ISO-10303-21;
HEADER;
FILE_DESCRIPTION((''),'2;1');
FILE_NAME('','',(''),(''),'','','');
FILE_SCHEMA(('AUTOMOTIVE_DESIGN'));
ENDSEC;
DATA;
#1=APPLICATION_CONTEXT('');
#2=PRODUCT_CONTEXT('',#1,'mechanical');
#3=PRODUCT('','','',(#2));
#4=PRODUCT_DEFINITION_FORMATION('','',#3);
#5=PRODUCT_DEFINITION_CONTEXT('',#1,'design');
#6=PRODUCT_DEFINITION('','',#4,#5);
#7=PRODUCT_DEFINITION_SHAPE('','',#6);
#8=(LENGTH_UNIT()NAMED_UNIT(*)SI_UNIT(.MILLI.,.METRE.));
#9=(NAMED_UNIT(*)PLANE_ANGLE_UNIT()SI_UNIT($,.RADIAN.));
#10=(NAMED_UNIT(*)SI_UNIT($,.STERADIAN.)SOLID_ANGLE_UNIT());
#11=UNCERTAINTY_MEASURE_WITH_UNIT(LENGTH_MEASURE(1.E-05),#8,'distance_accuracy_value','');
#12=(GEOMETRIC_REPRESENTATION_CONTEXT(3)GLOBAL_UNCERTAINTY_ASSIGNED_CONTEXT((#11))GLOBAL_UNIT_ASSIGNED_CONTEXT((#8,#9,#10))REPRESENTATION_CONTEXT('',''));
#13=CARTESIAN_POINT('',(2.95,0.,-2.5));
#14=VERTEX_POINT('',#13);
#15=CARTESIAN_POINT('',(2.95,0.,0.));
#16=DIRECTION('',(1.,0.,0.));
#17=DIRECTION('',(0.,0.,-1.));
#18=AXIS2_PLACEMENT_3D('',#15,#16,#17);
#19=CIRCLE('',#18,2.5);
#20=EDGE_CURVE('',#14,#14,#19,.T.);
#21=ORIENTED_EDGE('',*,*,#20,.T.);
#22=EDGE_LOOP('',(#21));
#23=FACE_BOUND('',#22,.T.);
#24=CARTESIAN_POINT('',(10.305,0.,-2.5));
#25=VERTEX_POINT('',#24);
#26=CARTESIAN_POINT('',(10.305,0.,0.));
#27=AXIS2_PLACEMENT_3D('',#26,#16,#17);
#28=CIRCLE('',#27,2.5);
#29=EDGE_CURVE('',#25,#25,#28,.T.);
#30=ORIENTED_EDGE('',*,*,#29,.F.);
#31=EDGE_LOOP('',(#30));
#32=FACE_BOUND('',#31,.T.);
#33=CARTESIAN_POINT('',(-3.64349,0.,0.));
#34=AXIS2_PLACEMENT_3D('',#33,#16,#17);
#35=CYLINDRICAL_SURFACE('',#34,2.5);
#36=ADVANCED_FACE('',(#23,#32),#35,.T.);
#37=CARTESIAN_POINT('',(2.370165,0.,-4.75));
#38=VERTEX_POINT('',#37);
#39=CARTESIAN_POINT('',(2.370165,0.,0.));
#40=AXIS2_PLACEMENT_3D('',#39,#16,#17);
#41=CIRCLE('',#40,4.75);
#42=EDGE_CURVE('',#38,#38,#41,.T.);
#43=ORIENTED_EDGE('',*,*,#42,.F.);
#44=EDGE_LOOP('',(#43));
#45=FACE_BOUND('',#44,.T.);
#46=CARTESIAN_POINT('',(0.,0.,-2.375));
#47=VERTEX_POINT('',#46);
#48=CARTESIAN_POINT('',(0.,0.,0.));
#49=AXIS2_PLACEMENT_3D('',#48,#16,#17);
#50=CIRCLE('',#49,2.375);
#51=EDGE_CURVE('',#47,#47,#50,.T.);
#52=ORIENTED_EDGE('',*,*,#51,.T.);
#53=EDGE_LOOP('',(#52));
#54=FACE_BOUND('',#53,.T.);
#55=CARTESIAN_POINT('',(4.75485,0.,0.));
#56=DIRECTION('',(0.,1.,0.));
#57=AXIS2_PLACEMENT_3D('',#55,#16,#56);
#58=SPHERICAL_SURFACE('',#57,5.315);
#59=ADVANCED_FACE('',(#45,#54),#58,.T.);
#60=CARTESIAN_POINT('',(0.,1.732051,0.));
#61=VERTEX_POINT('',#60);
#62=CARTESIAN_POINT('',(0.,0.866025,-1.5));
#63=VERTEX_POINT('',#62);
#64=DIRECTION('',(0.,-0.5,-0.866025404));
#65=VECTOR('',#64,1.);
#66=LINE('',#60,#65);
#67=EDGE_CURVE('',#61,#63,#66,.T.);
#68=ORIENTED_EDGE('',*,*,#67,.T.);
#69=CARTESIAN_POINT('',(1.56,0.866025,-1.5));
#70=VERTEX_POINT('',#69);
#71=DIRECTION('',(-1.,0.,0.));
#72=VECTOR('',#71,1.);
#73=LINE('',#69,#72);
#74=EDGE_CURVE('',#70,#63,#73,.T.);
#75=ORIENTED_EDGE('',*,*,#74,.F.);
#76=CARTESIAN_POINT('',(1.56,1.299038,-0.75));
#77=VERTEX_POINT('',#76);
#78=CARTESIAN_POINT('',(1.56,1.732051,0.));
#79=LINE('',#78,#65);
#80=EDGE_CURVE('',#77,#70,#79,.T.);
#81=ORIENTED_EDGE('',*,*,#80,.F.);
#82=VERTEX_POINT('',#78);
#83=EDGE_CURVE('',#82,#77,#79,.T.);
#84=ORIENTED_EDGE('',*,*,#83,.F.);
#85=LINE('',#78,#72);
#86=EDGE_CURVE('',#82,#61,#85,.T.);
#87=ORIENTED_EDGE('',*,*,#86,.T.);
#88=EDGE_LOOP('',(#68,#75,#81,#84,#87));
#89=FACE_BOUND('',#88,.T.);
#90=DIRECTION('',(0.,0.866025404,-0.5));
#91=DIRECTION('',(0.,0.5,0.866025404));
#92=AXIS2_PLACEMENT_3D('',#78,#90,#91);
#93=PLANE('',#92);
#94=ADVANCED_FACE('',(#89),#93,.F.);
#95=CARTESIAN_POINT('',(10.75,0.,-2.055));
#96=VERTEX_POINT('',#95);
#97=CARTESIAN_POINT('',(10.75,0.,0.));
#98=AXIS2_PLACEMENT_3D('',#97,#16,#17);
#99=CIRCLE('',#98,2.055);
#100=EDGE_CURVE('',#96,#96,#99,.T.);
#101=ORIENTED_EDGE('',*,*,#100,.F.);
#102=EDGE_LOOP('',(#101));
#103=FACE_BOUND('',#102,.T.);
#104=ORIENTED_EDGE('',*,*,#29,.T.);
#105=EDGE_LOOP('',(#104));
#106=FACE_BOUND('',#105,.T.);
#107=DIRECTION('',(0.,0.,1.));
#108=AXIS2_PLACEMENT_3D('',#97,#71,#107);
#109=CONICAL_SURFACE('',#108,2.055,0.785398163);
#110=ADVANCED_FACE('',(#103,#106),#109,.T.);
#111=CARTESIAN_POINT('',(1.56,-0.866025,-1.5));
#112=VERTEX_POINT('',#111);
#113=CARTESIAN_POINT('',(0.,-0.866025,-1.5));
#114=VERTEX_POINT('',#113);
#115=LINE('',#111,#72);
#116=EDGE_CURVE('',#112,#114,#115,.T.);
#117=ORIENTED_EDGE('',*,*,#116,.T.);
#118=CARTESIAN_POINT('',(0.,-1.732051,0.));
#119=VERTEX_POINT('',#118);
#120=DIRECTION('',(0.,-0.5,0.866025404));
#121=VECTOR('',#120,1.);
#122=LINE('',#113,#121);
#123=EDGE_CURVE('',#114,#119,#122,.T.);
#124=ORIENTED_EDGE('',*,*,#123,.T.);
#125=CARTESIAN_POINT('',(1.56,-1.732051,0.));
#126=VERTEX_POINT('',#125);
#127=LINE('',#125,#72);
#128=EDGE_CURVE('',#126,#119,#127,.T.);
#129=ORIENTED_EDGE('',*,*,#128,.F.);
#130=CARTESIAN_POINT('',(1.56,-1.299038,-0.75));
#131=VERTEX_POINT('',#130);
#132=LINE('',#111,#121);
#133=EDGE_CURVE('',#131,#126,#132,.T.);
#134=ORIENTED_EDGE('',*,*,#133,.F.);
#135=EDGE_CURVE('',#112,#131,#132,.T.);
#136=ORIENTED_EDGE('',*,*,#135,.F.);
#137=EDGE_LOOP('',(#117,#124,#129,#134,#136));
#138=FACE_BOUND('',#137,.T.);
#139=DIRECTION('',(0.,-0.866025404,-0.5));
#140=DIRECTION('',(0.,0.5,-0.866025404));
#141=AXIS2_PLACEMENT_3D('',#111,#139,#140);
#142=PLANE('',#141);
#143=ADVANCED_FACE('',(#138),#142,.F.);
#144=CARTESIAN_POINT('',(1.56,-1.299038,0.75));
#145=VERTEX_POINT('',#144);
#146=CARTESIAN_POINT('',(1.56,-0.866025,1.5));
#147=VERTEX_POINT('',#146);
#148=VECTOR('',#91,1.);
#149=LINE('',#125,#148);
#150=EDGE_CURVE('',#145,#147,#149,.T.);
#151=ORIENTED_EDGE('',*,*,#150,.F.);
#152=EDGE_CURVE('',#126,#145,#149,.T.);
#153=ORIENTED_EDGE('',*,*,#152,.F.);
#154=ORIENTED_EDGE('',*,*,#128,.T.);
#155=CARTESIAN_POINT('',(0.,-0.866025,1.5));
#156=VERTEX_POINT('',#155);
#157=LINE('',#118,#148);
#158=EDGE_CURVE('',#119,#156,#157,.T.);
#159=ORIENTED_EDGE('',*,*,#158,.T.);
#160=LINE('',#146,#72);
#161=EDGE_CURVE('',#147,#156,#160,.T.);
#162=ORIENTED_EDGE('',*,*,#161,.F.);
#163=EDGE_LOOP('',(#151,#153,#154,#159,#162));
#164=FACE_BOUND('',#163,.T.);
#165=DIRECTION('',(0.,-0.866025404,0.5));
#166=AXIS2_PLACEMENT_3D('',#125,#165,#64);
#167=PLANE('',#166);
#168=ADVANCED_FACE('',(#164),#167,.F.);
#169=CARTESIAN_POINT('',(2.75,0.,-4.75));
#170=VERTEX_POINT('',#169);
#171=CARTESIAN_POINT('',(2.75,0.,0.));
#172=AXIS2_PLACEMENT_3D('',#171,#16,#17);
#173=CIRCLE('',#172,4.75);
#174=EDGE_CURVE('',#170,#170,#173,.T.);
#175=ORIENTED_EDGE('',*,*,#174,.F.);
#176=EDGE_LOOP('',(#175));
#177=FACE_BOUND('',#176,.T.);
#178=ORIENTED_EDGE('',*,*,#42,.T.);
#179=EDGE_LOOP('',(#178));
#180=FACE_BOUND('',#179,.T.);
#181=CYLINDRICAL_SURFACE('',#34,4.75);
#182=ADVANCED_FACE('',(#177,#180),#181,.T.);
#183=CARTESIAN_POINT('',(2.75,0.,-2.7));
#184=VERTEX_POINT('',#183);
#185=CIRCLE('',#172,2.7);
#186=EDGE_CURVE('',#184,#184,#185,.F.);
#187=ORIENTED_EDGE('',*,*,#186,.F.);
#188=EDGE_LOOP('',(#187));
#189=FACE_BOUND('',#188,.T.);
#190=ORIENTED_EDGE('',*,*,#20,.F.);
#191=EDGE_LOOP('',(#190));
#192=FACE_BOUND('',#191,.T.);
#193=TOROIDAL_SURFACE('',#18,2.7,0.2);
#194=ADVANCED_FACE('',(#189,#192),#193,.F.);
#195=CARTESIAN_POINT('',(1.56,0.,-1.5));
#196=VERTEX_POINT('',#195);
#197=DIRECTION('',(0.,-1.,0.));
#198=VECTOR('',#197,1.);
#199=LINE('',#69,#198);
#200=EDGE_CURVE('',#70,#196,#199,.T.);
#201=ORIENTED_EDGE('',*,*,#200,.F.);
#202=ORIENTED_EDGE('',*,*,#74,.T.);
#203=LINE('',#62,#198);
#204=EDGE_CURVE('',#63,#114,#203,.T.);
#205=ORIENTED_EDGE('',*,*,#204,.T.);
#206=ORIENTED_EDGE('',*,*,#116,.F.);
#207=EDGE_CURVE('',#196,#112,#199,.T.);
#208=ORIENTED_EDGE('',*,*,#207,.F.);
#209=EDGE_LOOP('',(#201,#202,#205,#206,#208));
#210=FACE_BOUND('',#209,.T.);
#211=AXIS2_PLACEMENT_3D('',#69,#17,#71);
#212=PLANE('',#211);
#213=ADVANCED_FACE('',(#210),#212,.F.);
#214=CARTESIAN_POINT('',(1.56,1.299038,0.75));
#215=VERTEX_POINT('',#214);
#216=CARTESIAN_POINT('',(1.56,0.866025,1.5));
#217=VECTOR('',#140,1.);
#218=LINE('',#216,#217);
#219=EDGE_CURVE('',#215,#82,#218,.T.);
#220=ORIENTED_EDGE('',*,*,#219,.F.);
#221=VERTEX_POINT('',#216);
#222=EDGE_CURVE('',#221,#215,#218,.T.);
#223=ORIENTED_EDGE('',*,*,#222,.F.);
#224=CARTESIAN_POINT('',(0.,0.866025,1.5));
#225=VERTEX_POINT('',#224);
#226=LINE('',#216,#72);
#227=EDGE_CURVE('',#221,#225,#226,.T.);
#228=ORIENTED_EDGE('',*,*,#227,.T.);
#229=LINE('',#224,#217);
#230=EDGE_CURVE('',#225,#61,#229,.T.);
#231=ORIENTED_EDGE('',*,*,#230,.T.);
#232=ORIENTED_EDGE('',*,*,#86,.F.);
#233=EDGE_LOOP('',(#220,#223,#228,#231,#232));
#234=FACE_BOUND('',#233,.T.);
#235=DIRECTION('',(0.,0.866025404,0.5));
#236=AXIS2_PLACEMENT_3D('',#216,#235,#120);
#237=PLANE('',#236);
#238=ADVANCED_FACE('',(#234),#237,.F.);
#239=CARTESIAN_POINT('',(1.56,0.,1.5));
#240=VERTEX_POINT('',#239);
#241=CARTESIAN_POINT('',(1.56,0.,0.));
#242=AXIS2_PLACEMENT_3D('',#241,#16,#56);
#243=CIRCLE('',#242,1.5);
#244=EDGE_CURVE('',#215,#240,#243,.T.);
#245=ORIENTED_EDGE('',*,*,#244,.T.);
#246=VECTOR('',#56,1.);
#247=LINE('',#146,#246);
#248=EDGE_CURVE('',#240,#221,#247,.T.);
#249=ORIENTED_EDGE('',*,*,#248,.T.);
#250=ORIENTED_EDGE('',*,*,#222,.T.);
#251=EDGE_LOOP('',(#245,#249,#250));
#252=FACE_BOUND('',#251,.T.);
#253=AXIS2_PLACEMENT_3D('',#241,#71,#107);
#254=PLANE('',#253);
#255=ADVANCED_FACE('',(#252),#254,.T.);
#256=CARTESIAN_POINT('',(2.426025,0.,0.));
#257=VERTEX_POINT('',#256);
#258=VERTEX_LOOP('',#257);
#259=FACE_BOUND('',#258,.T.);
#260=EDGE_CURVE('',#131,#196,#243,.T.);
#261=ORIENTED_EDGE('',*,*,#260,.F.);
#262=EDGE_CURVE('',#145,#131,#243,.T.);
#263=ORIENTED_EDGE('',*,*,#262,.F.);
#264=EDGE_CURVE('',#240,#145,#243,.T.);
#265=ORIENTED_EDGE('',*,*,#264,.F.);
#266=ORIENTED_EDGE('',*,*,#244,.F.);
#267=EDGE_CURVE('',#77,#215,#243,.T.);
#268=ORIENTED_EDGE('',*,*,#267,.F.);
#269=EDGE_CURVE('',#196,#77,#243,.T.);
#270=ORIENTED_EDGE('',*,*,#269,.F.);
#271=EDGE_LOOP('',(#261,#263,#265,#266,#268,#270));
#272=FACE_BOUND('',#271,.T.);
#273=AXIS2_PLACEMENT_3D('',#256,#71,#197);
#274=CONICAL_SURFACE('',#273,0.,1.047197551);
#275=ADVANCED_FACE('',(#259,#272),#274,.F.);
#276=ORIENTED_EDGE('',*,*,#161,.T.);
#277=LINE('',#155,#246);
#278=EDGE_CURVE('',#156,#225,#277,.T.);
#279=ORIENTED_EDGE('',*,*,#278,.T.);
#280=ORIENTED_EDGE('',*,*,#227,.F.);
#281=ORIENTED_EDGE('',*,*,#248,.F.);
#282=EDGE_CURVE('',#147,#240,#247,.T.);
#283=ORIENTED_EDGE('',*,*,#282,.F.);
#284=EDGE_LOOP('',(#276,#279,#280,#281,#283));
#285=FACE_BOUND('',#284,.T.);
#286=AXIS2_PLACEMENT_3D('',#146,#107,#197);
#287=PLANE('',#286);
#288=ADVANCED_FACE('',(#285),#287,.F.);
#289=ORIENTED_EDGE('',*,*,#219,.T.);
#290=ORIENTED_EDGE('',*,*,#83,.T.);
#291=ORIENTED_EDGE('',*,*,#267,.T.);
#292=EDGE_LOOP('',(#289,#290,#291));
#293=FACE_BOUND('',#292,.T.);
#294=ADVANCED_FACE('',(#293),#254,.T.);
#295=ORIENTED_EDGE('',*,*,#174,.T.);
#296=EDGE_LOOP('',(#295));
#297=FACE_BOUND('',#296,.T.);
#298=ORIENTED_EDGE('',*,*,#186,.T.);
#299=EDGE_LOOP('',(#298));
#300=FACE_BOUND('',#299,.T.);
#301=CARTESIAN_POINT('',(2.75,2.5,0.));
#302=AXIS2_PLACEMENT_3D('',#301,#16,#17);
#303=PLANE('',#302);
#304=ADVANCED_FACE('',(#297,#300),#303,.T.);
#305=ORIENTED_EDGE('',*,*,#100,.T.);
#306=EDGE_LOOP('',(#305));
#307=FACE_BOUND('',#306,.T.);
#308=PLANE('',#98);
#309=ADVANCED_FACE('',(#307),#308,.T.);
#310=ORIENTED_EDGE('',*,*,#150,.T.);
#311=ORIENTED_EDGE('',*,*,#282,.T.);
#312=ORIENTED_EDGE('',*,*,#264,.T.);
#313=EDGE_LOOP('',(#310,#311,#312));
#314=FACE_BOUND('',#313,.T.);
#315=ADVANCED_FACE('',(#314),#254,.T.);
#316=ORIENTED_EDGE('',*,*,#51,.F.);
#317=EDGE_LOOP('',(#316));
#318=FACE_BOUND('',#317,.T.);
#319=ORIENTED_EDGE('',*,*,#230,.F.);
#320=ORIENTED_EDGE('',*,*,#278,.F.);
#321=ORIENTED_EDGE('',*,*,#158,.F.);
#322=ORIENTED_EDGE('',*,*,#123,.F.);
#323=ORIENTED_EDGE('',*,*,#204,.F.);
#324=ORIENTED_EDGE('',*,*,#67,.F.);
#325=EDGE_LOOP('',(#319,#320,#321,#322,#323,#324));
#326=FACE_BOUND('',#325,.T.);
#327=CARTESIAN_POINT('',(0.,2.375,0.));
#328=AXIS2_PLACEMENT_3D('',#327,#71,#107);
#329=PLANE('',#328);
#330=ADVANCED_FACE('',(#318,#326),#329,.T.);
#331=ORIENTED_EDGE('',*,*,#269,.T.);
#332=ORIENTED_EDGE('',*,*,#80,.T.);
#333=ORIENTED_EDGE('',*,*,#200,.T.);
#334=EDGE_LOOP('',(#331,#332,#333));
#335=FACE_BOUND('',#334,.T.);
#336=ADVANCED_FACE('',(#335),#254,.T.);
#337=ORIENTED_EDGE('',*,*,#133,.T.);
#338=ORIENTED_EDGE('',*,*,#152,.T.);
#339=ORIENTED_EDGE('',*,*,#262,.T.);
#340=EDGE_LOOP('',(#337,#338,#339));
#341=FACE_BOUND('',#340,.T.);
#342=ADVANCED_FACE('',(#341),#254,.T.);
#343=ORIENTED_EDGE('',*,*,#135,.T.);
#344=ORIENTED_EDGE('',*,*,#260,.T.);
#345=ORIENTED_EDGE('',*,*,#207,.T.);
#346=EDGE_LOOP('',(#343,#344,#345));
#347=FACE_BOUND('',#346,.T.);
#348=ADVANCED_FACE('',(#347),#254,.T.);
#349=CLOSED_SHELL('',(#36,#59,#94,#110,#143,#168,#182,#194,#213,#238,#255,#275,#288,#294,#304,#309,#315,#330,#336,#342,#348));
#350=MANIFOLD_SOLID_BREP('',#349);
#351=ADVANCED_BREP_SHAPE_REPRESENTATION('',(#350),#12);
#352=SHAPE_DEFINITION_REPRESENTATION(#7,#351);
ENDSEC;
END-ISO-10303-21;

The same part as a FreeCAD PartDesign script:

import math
import FreeCAD as App
import Part
import Sketcher
from FreeCAD import Vector
Q = App.Units.Quantity


def edges_at(feature, points):
    """Names of the edges that pass closest to the given points."""
    edges = feature.Shape.Edges
    near = lambda p: min(range(len(edges)), key=lambda i: edges[i].distToShape(Part.Vertex(*p))[0])
    return sorted({f"Edge{near(p) + 1}" for p in points})

doc = App.newDocument("Part")
params = doc.addObject("Spreadsheet::Sheet", "Params")
for row, (alias, value) in enumerate([
    ("sketch1_width", "10.75 mm"),
    ("sketch1_height", "2.25 mm"),
    ("revolution_angle", "360 deg"),
    ("fillet_radius", "0.2 mm"),
    ("sketch2_height", "1.5 mm"),
    ("sketch2_width", "1.56 mm"),
    ("groove_angle", "360 deg"),
    ("pocket1_length", "1.56 mm"),
], start=1):
    params.set(f"A{row}", alias)
    params.set(f"B{row}", "=" + value)
    params.setAlias(f"B{row}", alias)

body = doc.addObject("PartDesign::Body", "Body")

sketch1 = doc.addObject("Sketcher::SketchObject", "Sketch")
body.addObject(sketch1)
sketch1.AttachmentSupport = (doc.XY_Plane, [""])
sketch1.MapMode = "FlatFace"
sketch1.addGeometry(Part.LineSegment(Vector(0, 2.38, 0), Vector(0, 0, 0)), False)
sketch1.addGeometry(Part.LineSegment(Vector(0, 0, 0), Vector(10.75, 0, 0)), False)
sketch1.addGeometry(Part.LineSegment(Vector(10.75, 0, 0), Vector(10.75, 2.06, 0)), False)
sketch1.addGeometry(Part.LineSegment(Vector(10.75, 2.06, 0), Vector(10.3, 2.5, 0)), False)
sketch1.addGeometry(Part.LineSegment(Vector(10.3, 2.5, 0), Vector(2.75, 2.5, 0)), False)
sketch1.addGeometry(Part.LineSegment(Vector(2.75, 2.5, 0), Vector(2.75, 4.75, 0)), False)
sketch1.addGeometry(Part.LineSegment(Vector(2.75, 4.75, 0), Vector(2.37, 4.75, 0)), False)
sketch1.addGeometry(Part.ArcOfCircle(Part.Circle(Vector(4.75, 0, 0), Vector(0, 0, 1), 5.32), math.radians(117), math.radians(153)), False)
sketch1.addConstraint(Sketcher.Constraint("Coincident", 0, 2, 1, 1))
sketch1.addConstraint(Sketcher.Constraint("Coincident", 1, 2, 2, 1))
sketch1.addConstraint(Sketcher.Constraint("Coincident", 2, 2, 3, 1))
sketch1.addConstraint(Sketcher.Constraint("Coincident", 3, 2, 4, 1))
sketch1.addConstraint(Sketcher.Constraint("Coincident", 4, 2, 5, 1))
sketch1.addConstraint(Sketcher.Constraint("Coincident", 5, 2, 6, 1))
sketch1.addConstraint(Sketcher.Constraint("Coincident", 6, 2, 7, 1))
sketch1.addConstraint(Sketcher.Constraint("Coincident", 7, 2, 0, 1))
sketch1.addConstraint(Sketcher.Constraint("Vertical", 0))
sketch1.addConstraint(Sketcher.Constraint("Horizontal", 1))
sketch1.addConstraint(Sketcher.Constraint("Vertical", 2))
sketch1.addConstraint(Sketcher.Constraint("Horizontal", 4))
sketch1.addConstraint(Sketcher.Constraint("Vertical", 5))
sketch1.addConstraint(Sketcher.Constraint("Horizontal", 6))
sketch1.addConstraint(Sketcher.Constraint("Coincident", 0, 2, -1, 1))
sketch1.addConstraint(Sketcher.Constraint("PointOnObject", 7, 3, -1))
sketch1.addConstraint(Sketcher.Constraint("Angle", 3, Q("135 deg")))
sketch1.addConstraint(Sketcher.Constraint("Radius", 7, Q("5.315 mm")))
sketch1.addConstraint(Sketcher.Constraint("DistanceX", 4, 2, 2, 2, Q("8 mm")))
sketch1.addConstraint(Sketcher.Constraint("DistanceX", 1, 1, 1, 2, Q("10.75 mm")))
sketch1.addConstraint(Sketcher.Constraint("DistanceY", 5, 1, 5, 2, Q("2.25 mm")))
sketch1.addConstraint(Sketcher.Constraint("DistanceY", -1, 1, 3, 2, Q("2.5 mm")))
sketch1.addConstraint(Sketcher.Constraint("DistanceX", 4, 2, 4, 1, Q("7.555 mm")))
sketch1.addConstraint(Sketcher.Constraint("DistanceY", 0, 2, 0, 1, Q("2.375 mm")))
sketch1.setExpression("Constraints[19]", "Params.sketch1_width")
sketch1.setExpression("Constraints[20]", "Params.sketch1_height")
revolution = doc.addObject("PartDesign::Revolution", "Revolution")
body.addObject(revolution)
revolution.Profile = sketch1
revolution.ReferenceAxis = (sketch1, ["H_Axis"])
revolution.setExpression("Angle", "Params.revolution_angle")
doc.recompute()

fillet = doc.addObject("PartDesign::Fillet", "Fillet")
body.addObject(fillet)
fillet.Base = (revolution, edges_at(revolution, [(2.75, -2.5, 0)]))
fillet.setExpression("Radius", "Params.fillet_radius")

sketch2 = doc.addObject("Sketcher::SketchObject", "Sketch001")
body.addObject(sketch2)
sketch2.AttachmentSupport = (doc.XY_Plane, [""])
sketch2.MapMode = "FlatFace"
sketch2.addGeometry(Part.LineSegment(Vector(0, 1.5, 0), Vector(0, 0, 0)), False)
sketch2.addGeometry(Part.LineSegment(Vector(0, 0, 0), Vector(2.4, 0, 0)), False)
sketch2.addGeometry(Part.LineSegment(Vector(2.4, 0, 0), Vector(1.6, 1.5, 0)), False)
sketch2.addGeometry(Part.LineSegment(Vector(1.6, 1.5, 0), Vector(0, 1.5, 0)), False)
sketch2.addConstraint(Sketcher.Constraint("Coincident", 0, 2, 1, 1))
sketch2.addConstraint(Sketcher.Constraint("Coincident", 1, 2, 2, 1))
sketch2.addConstraint(Sketcher.Constraint("Coincident", 2, 2, 3, 1))
sketch2.addConstraint(Sketcher.Constraint("Coincident", 3, 2, 0, 1))
sketch2.addConstraint(Sketcher.Constraint("Vertical", 0))
sketch2.addConstraint(Sketcher.Constraint("Horizontal", 1))
sketch2.addConstraint(Sketcher.Constraint("Horizontal", 3))
sketch2.addConstraint(Sketcher.Constraint("Coincident", 0, 2, -1, 1))
sketch2.addConstraint(Sketcher.Constraint("Angle", 2, Q("120 deg")))
sketch2.addConstraint(Sketcher.Constraint("DistanceY", 0, 2, 0, 1, Q("1.5 mm")))
sketch2.addConstraint(Sketcher.Constraint("DistanceX", 3, 2, 3, 1, Q("1.56 mm")))
sketch2.setExpression("Constraints[9]", "Params.sketch2_height")
sketch2.setExpression("Constraints[10]", "Params.sketch2_width")
groove = doc.addObject("PartDesign::Groove", "Groove")
body.addObject(groove)
groove.Profile = sketch2
groove.ReferenceAxis = (sketch2, ["H_Axis"])
groove.setExpression("Angle", "Params.groove_angle")

sketch3 = doc.addObject("Sketcher::SketchObject", "Sketch002")
body.addObject(sketch3)
sketch3.AttachmentSupport = (doc.YZ_Plane, [""])
sketch3.MapMode = "FlatFace"
sketch3.addGeometry(Part.LineSegment(Vector(-0.9, -1.5, 0), Vector(-1.7, 0, 0)), False)
sketch3.addGeometry(Part.LineSegment(Vector(-1.7, 0, 0), Vector(-0.9, 1.5, 0)), False)
sketch3.addGeometry(Part.LineSegment(Vector(-0.9, 1.5, 0), Vector(0.9, 1.5, 0)), False)
sketch3.addGeometry(Part.LineSegment(Vector(0.9, 1.5, 0), Vector(1.7, 0, 0)), False)
sketch3.addGeometry(Part.LineSegment(Vector(1.7, 0, 0), Vector(0.9, -1.5, 0)), False)
sketch3.addGeometry(Part.LineSegment(Vector(0.9, -1.5, 0), Vector(-0.9, -1.5, 0)), False)
sketch3.addConstraint(Sketcher.Constraint("Coincident", 0, 2, 1, 1))
sketch3.addConstraint(Sketcher.Constraint("Coincident", 1, 2, 2, 1))
sketch3.addConstraint(Sketcher.Constraint("Coincident", 2, 2, 3, 1))
sketch3.addConstraint(Sketcher.Constraint("Coincident", 3, 2, 4, 1))
sketch3.addConstraint(Sketcher.Constraint("Coincident", 4, 2, 5, 1))
sketch3.addConstraint(Sketcher.Constraint("Coincident", 5, 2, 0, 1))
sketch3.addConstraint(Sketcher.Constraint("Horizontal", 2))
sketch3.addConstraint(Sketcher.Constraint("Horizontal", 5))
sketch3.addConstraint(Sketcher.Constraint("Symmetric", 0, 2, 3, 2, -1, 1))
sketch3.addConstraint(Sketcher.Constraint("Symmetric", 1, 2, 4, 2, -1, 1))
sketch3.addConstraint(Sketcher.Constraint("PointOnObject", 0, 2, -1))
sketch3.addConstraint(Sketcher.Constraint("Parallel", 0, 3))
sketch3.addConstraint(Sketcher.Constraint("Vertical", 2, 2, 4, 2))
sketch3.addConstraint(Sketcher.Constraint("Angle", 0, Q("120 deg")))
sketch3.addConstraint(Sketcher.Constraint("DistanceY", 4, 2, 2, 2, Q("3 mm")))
sketch3.addConstraint(Sketcher.Constraint("DistanceX", 2, 1, 2, 2, Q("1.732051 mm")))
pocket1 = doc.addObject("PartDesign::Pocket", "Pocket")
body.addObject(pocket1)
pocket1.Profile = sketch3
pocket1.setExpression("Length", "Params.pocket1_length")
pocket1.Reversed = True

doc.recompute()
